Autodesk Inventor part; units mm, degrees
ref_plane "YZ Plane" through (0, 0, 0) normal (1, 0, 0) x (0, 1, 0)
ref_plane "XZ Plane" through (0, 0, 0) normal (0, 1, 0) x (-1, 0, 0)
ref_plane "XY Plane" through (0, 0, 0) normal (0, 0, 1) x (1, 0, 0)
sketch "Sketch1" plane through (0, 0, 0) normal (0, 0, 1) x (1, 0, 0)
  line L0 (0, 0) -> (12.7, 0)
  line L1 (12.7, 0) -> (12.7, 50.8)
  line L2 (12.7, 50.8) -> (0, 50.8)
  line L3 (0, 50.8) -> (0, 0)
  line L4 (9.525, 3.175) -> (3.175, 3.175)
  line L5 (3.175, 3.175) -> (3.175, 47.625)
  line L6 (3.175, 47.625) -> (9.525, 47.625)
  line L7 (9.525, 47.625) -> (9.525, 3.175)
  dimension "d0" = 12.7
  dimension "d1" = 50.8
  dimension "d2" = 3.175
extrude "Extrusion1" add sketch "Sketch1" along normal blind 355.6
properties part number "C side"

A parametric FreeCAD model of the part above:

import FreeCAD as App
import Part
import Sketcher
Q = App.Units.Quantity

doc = App.newDocument("Part")
params = doc.addObject("Spreadsheet::Sheet", "Params")
for row, (alias, value) in enumerate([
    ("sketch1_height", "2 in"),
    ("sketch1_width", "0.5 in"),
    ("pad1_length", "14 in"),
], start=1):
    params.set(f"A{row}", alias)
    params.set(f"B{row}", "=" + value)
    params.setAlias(f"B{row}", alias)

body = doc.addObject("PartDesign::Body", "Body")

sketch1 = doc.addObject("Sketcher::SketchObject", "Sketch")
body.addObject(sketch1)
sketch1.AttachmentSupport = (doc.XY_Plane, [""])
sketch1.MapMode = "FlatFace"
sketch1.addGeometry([
    Part.LineSegment(App.Vector(0, 51, 0), App.Vector(0, 0, 0)),
    Part.LineSegment(App.Vector(0, 0, 0), App.Vector(13, 0, 0)),
    Part.LineSegment(App.Vector(13, 0, 0), App.Vector(13, 51, 0)),
    Part.LineSegment(App.Vector(13, 51, 0), App.Vector(0, 51, 0)),
    Part.LineSegment(App.Vector(10, 48, 0), App.Vector(10, 3, 0)),
    Part.LineSegment(App.Vector(10, 3, 0), App.Vector(3, 3, 0)),
    Part.LineSegment(App.Vector(3, 3, 0), App.Vector(3, 48, 0)),
    Part.LineSegment(App.Vector(3, 48, 0), App.Vector(10, 48, 0)),
], False)
sketch1.addConstraint([
    Sketcher.Constraint("Coincident", 0, 2, 1, 1),
    Sketcher.Constraint("Coincident", 1, 2, 2, 1),
    Sketcher.Constraint("Coincident", 2, 2, 3, 1),
    Sketcher.Constraint("Coincident", 3, 2, 0, 1),
    Sketcher.Constraint("Coincident", 4, 2, 5, 1),
    Sketcher.Constraint("Coincident", 5, 2, 6, 1),
    Sketcher.Constraint("Coincident", 6, 2, 7, 1),
    Sketcher.Constraint("Coincident", 7, 2, 4, 1),
    Sketcher.Constraint("Vertical", 0),
    Sketcher.Constraint("Horizontal", 1),
    Sketcher.Constraint("Vertical", 2),
    Sketcher.Constraint("Horizontal", 3),
    Sketcher.Constraint("Vertical", 4),
    Sketcher.Constraint("Horizontal", 5),
    Sketcher.Constraint("Vertical", 6),
    Sketcher.Constraint("Horizontal", 7),
    Sketcher.Constraint("Coincident", 0, 2, -1, 1),
    Sketcher.Constraint("DistanceY", 0, 2, 0, 1, Q("2 in")),
    Sketcher.Constraint("DistanceX", 1, 1, 1, 2, Q("0.5 in")),
    Sketcher.Constraint("DistanceY", -1, 1, 4, 2, Q("0.125 in")),
    Sketcher.Constraint("DistanceX", -1, 1, 5, 2, Q("0.125 in")),
    Sketcher.Constraint("DistanceX", 4, 2, 1, 2, Q("0.125 in")),
    Sketcher.Constraint("DistanceY", 6, 2, 3, 2, Q("0.125 in")),
])
sketch1.setExpression("Constraints[17]", "Params.sketch1_height")
sketch1.setExpression("Constraints[18]", "Params.sketch1_width")
pad1 = doc.addObject("PartDesign::Pad", "Pad")
body.addObject(pad1)
pad1.Profile = sketch1
pad1.setExpression("Length", "Params.pad1_length")

doc.recompute()
